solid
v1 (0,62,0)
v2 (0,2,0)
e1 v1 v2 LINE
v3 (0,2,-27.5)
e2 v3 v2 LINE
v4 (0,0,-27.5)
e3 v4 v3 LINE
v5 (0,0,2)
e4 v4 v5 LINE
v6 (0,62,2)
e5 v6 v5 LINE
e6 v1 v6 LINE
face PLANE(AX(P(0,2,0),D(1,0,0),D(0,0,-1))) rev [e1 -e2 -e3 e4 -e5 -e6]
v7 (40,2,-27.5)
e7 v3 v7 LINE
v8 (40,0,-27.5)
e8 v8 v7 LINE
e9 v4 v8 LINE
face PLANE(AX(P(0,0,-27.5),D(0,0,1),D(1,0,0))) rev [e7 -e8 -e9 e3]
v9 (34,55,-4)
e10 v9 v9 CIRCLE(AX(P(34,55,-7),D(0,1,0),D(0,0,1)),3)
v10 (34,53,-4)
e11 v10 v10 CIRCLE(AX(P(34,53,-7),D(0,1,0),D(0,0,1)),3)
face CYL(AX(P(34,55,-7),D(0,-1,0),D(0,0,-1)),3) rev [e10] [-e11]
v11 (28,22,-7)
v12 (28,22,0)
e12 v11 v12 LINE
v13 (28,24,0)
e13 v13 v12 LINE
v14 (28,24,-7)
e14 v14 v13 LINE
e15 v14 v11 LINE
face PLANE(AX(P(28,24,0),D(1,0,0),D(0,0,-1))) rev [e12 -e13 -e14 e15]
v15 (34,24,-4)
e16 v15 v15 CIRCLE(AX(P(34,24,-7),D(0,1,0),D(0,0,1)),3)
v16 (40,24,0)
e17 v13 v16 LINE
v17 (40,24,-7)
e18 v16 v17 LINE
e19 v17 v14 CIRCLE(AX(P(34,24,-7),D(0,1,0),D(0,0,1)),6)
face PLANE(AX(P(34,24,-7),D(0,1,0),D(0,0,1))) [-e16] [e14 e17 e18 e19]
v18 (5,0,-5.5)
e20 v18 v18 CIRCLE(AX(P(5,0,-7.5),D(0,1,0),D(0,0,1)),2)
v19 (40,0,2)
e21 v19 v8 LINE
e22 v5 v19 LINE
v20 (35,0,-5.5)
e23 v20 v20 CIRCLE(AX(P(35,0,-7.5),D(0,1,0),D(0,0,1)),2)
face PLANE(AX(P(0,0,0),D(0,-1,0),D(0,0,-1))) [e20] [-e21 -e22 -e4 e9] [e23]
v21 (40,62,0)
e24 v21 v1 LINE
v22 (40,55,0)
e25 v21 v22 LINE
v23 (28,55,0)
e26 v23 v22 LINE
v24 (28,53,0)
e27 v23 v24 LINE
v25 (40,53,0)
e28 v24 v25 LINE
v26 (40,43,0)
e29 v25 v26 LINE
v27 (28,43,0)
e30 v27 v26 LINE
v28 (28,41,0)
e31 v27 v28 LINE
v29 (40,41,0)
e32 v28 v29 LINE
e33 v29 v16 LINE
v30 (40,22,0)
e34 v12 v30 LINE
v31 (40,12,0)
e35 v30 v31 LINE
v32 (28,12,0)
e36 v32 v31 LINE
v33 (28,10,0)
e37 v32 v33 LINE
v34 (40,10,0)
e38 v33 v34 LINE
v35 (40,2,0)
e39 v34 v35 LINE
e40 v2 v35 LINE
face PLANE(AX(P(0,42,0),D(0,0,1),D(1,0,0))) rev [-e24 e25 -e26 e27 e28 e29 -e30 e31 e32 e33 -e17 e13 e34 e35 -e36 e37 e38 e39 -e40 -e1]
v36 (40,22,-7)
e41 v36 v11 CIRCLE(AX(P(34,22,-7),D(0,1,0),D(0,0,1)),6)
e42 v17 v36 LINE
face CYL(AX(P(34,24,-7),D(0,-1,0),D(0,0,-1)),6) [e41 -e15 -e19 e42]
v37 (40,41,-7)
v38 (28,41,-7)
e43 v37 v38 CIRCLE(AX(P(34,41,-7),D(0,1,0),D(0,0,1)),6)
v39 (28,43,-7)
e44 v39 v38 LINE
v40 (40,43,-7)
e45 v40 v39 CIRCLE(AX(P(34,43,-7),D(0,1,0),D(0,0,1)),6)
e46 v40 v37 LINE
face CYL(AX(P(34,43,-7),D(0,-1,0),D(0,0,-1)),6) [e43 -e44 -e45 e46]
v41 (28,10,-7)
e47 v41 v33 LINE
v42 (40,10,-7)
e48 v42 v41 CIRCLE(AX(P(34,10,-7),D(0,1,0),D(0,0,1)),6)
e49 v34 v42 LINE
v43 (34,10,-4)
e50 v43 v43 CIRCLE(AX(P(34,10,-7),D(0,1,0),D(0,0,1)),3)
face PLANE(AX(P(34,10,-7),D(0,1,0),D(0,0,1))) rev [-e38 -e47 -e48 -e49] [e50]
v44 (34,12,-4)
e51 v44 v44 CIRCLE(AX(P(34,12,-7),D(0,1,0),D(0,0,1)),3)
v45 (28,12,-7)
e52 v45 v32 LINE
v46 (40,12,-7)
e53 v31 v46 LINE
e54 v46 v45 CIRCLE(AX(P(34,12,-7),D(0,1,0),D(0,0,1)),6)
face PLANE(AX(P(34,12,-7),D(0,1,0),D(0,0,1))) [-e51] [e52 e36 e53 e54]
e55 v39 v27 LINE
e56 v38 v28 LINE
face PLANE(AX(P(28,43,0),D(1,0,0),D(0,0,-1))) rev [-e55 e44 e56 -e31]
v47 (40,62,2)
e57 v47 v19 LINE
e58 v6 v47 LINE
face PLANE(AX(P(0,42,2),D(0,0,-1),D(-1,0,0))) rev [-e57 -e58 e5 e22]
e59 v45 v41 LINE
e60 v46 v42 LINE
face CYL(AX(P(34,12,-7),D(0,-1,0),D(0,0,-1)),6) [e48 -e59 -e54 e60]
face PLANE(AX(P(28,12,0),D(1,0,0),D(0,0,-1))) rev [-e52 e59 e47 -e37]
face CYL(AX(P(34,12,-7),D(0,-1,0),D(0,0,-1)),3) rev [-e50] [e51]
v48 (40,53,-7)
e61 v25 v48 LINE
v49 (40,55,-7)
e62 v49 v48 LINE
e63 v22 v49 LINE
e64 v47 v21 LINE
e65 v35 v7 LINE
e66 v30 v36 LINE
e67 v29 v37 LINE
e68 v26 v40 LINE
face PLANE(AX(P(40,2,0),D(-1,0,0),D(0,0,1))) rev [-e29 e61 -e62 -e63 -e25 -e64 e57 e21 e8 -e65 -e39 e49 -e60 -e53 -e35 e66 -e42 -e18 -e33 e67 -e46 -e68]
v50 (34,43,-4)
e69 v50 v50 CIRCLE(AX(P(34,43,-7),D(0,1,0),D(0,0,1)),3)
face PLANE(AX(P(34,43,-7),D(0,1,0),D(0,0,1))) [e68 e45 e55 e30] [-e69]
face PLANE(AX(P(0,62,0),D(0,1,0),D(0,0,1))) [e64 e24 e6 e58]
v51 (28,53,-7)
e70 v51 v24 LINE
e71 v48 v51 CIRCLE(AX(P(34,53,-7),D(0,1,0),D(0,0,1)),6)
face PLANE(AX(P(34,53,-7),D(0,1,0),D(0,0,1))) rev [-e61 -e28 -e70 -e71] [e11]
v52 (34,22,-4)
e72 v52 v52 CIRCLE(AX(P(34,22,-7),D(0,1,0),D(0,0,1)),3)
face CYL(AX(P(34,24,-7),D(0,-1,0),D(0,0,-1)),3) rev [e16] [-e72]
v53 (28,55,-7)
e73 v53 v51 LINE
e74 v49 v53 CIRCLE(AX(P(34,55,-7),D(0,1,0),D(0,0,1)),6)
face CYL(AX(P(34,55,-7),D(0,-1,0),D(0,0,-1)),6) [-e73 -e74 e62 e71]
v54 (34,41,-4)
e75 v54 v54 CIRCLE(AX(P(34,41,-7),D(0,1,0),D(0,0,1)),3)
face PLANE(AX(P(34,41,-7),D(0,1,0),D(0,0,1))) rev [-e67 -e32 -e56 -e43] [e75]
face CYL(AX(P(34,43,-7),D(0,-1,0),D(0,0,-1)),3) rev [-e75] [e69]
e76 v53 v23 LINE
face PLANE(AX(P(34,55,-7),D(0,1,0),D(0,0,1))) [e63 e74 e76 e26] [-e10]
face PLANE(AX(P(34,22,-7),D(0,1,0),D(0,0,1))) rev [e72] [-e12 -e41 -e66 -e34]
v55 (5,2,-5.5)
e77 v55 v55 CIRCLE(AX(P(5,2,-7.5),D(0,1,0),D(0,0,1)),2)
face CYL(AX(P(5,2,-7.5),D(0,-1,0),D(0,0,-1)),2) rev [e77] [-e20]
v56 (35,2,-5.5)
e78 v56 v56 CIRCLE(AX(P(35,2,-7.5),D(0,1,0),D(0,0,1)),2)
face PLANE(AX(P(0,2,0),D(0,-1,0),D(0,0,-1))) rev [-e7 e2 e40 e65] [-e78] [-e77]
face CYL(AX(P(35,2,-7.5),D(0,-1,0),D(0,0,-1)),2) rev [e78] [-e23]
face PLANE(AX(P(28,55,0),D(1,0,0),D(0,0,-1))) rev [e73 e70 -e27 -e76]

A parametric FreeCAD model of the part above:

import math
import FreeCAD as App
import Part
import Sketcher

V = App.Vector
Q = App.Units.Quantity


def add_polygon(sketch, points):
    """Adds a closed chain of lines whose ends are joined by coincident constraints."""
    first, n = sketch.GeometryCount, len(points)
    for a, b in zip(points, points[1:] + points[:1]):
        sketch.addGeometry(Part.LineSegment(App.Vector(*a, 0), App.Vector(*b, 0)), False)
    for i in range(n):
        sketch.addConstraint(Sketcher.Constraint("Coincident", first + i, 2, first + (i + 1) % n, 1))

doc = App.newDocument("Part")
body = doc.addObject("PartDesign::Body", "Body")

# Sketch on XZ plane
sketch1 = body.newObject("Sketcher::SketchObject", "Sketch")
sketch1.AttachmentSupport = (doc.getObject("XZ_Plane"), [""])
sketch1.MapMode = "FlatFace"
add_polygon(sketch1, [(0, -55), (0, 0), (40, 0), (40, -55)])  # lines 0-3
sketch1.addGeometry(Part.Circle(V(5, -7.5, 0), V(0, 0, 1), 2), False)  # 4
sketch1.addGeometry(Part.Circle(V(35, -7.5, 0), V(0, 0, 1), 2), False)  # 5
sketch1.addGeometry(Part.Circle(V(5, -47.5, 0), V(0, 0, 1), 2), False)  # 6
sketch1.addGeometry(Part.Circle(V(35, -47.5, 0), V(0, 0, 1), 2), False)  # 7
sketch1.addConstraint([
    Sketcher.Constraint("Vertical", 0),
    Sketcher.Constraint("Horizontal", 1),
    Sketcher.Constraint("Vertical", 2),
    Sketcher.Constraint("Horizontal", 3),
    Sketcher.Constraint("Coincident", 0, 2, -1, 1),
    Sketcher.Constraint("Equal", 4, 5),
    Sketcher.Constraint("Equal", 5, 6),
    Sketcher.Constraint("Equal", 6, 7),
    Sketcher.Constraint("Horizontal", 4, 3, 5, 3),
    Sketcher.Constraint("Horizontal", 6, 3, 7, 3),
    Sketcher.Constraint("Vertical", 4, 3, 6, 3),
    Sketcher.Constraint("Vertical", 5, 3, 7, 3),
    Sketcher.Constraint("Diameter", 4, Q("4 mm")),
    Sketcher.Constraint("DistanceX", 1, 1, 1, 2, Q("40 mm")),
    Sketcher.Constraint("DistanceY", 0, 1, 0, 2, Q("55 mm")),
    Sketcher.Constraint("DistanceX", -1, 1, 4, 3, Q("5 mm")),
    Sketcher.Constraint("DistanceX", -1, 1, 5, 3, Q("35 mm")),
    Sketcher.Constraint("DistanceY", 6, 3, 4, 3, Q("40 mm")),
    Sketcher.Constraint("DistanceY", 4, 3, -1, 1, Q("7.5 mm")),
])
pad1 = body.newObject("PartDesign::Pad", "Pad")
pad1.Profile = sketch1
pad1.Length = 2
pad1.Reversed = True

# Sketch on XZ plane
sketch2 = body.newObject("Sketcher::SketchObject", "Sketch001")
sketch2.AttachmentSupport = (doc.getObject("XZ_Plane"), [""])
sketch2.MapMode = "FlatFace"
add_polygon(sketch2, [(0, 0), (0, 2), (40, 2), (40, 0)])  # lines 0-3
sketch2.addConstraint([
    Sketcher.Constraint("Vertical", 0),
    Sketcher.Constraint("Horizontal", 1),
    Sketcher.Constraint("Vertical", 2),
    Sketcher.Constraint("Horizontal", 3),
    Sketcher.Constraint("Coincident", 3, 2, -1, 1),
    Sketcher.Constraint("DistanceX", 1, 1, 1, 2, Q("40 mm")),
    Sketcher.Constraint("DistanceY", 0, 1, 0, 2, Q("2 mm")),
])
pad2 = body.newObject("PartDesign::Pad", "Pad001")
pad2.Profile = sketch2
pad2.Length = 42
pad2.Reversed = True

# Sketch on XZ plane
sketch3 = body.newObject("Sketcher::SketchObject", "Sketch002")
sketch3.AttachmentSupport = (doc.getObject("XZ_Plane"), [""])
sketch3.MapMode = "FlatFace"
sketch3.AttachmentOffset = App.Placement(V(0, 0, -22), App.Rotation())
sketch3.addGeometry([
    Part.LineSegment(V(40, 0, 0), V(40, -7, 0)),  # 0
    Part.ArcOfCircle(Part.Circle(V(34, -7, 0), V(0, 0, 1), 6), math.radians(180), math.radians(360)),  # 1
    Part.LineSegment(V(28, -7, 0), V(28, 0, 0)),  # 2
    Part.LineSegment(V(28, 0, 0), V(40, 0, 0)),  # 3
    Part.Circle(V(34, -7, 0), V(0, 0, 1), 3),  # 4
], False)
sketch3.addConstraint([
    Sketcher.Constraint("Tangent", 0, 2, 1, 2),
    Sketcher.Constraint("Tangent", 1, 1, 2, 1),
    Sketcher.Constraint("Coincident", 2, 2, 3, 1),
    Sketcher.Constraint("Coincident", 3, 2, 0, 1),
    Sketcher.Constraint("Vertical", 0),
    Sketcher.Constraint("Vertical", 2),
    Sketcher.Constraint("Horizontal", 3),
    Sketcher.Constraint("Coincident", 4, 3, 1, 3),
    Sketcher.Constraint("PointOnObject", 2, 2, -1),
    Sketcher.Constraint("Diameter", 4, Q("6 mm")),
    Sketcher.Constraint("Radius", 1, Q("6 mm")),
    Sketcher.Constraint("DistanceY", 0, 2, 0, 1, Q("7 mm")),
    Sketcher.Constraint("DistanceX", -1, 1, 1, 3, Q("34 mm")),
])
pad3 = body.newObject("PartDesign::Pad", "Pad002")
pad3.Profile = sketch3
pad3.Length = 2
pad3.Reversed = True
doc.recompute()

linearpattern = body.newObject("PartDesign::LinearPattern", "LinearPattern")
linearpattern.Originals = [pad3]
linearpattern.Direction = (doc.getObject("Y_Axis"), [""])
linearpattern.Mode = "offset"
linearpattern.Offset = 12
linearpattern.Occurrences = 2
linearpattern.Reversed = True
body.Tip = linearpattern

# Sketch on XZ plane
sketch4 = body.newObject("Sketcher::SketchObject", "Sketch003")
sketch4.AttachmentSupport = (doc.getObject("XZ_Plane"), [""])
sketch4.MapMode = "FlatFace"
sketch4.AttachmentOffset = App.Placement(V(0, 0, -2), App.Rotation())
add_polygon(sketch4, [(0, -55), (0, -28), (40, -28), (40, -55)])  # lines 0-3
sketch4.addConstraint([
    Sketcher.Constraint("Vertical", 0),
    Sketcher.Constraint("Horizontal", 1),
    Sketcher.Constraint("Vertical", 2),
    Sketcher.Constraint("Horizontal", 3),
    Sketcher.Constraint("PointOnObject", 0, 2, -2),
    Sketcher.Constraint("DistanceX", 1, 1, 1, 2, Q("40 mm")),
    Sketcher.Constraint("DistanceY", 0, 1, 0, 2, Q("27.5 mm")),
    Sketcher.Constraint("DistanceY", 2, 2, -1, 1, Q("55 mm")),
])
pocket1 = body.newObject("PartDesign::Pocket", "Pocket")
pocket1.Profile = sketch4
pocket1.Type = "ThroughAll"
pocket1.Reversed = True

# Sketch on XZ plane
sketch5 = body.newObject("Sketcher::SketchObject", "Sketch004")
sketch5.AttachmentSupport = (doc.getObject("XZ_Plane"), [""])
sketch5.MapMode = "FlatFace"
sketch5.AttachmentOffset = App.Placement(V(0, 0, -42), App.Rotation())
add_polygon(sketch5, [(0, 0), (0, 2), (40, 2), (40, 0)])  # lines 0-3
sketch5.addConstraint([
    Sketcher.Constraint("Vertical", 0),
    Sketcher.Constraint("Horizontal", 1),
    Sketcher.Constraint("Vertical", 2),
    Sketcher.Constraint("Horizontal", 3),
    Sketcher.Constraint("Coincident", 3, 2, -1, 1),
    Sketcher.Constraint("DistanceX", 1, 1, 1, 2, Q("40 mm")),
    Sketcher.Constraint("DistanceY", 0, 1, 0, 2, Q("2 mm")),
])
pad4 = body.newObject("PartDesign::Pad", "Pad003")
pad4.Profile = sketch5
pad4.Length = 20
pad4.Reversed = True

# Sketch on XZ plane
sketch6 = body.newObject("Sketcher::SketchObject", "Sketch005")
sketch6.AttachmentSupport = (doc.getObject("XZ_Plane"), [""])
sketch6.MapMode = "FlatFace"
sketch6.AttachmentOffset = App.Placement(V(0, 0, -41), App.Rotation())
sketch6.addGeometry([
    Part.LineSegment(V(40, 0, 0), V(40, -7, 0)),  # 0
    Part.ArcOfCircle(Part.Circle(V(34, -7, 0), V(0, 0, 1), 6), math.radians(180), math.radians(360)),  # 1
    Part.LineSegment(V(28, -7, 0), V(28, 0, 0)),  # 2
    Part.LineSegment(V(28, 0, 0), V(40, 0, 0)),  # 3
    Part.Circle(V(34, -7, 0), V(0, 0, 1), 3),  # 4
], False)
sketch6.addConstraint([
    Sketcher.Constraint("Tangent", 0, 2, 1, 2),
    Sketcher.Constraint("Tangent", 1, 1, 2, 1),
    Sketcher.Constraint("Coincident", 2, 2, 3, 1),
    Sketcher.Constraint("Coincident", 3, 2, 0, 1),
    Sketcher.Constraint("Vertical", 0),
    Sketcher.Constraint("Vertical", 2),
    Sketcher.Constraint("Horizontal", 3),
    Sketcher.Constraint("Coincident", 4, 3, 1, 3),
    Sketcher.Constraint("PointOnObject", 2, 2, -1),
    Sketcher.Constraint("Diameter", 4, Q("6 mm")),
    Sketcher.Constraint("Radius", 1, Q("6 mm")),
    Sketcher.Constraint("DistanceY", 0, 2, 0, 1, Q("7 mm")),
    Sketcher.Constraint("DistanceX", -1, 1, 1, 3, Q("34 mm")),
])
pad5 = body.newObject("PartDesign::Pad", "Pad004")
pad5.Profile = sketch6
pad5.Length = 2
pad5.Reversed = True

# Sketch on XZ plane
sketch7 = body.newObject("Sketcher::SketchObject", "Sketch006")
sketch7.AttachmentSupport = (doc.getObject("XZ_Plane"), [""])
sketch7.MapMode = "FlatFace"
sketch7.AttachmentOffset = App.Placement(V(0, 0, -53), App.Rotation())
sketch7.addGeometry([
    Part.LineSegment(V(40, 0, 0), V(40, -7, 0)),  # 0
    Part.ArcOfCircle(Part.Circle(V(34, -7, 0), V(0, 0, 1), 6), math.radians(180), math.radians(360)),  # 1
    Part.LineSegment(V(28, -7, 0), V(28, 0, 0)),  # 2
    Part.LineSegment(V(28, 0, 0), V(40, 0, 0)),  # 3
    Part.Circle(V(34, -7, 0), V(0, 0, 1), 3),  # 4
], False)
sketch7.addConstraint([
    Sketcher.Constraint("Tangent", 0, 2, 1, 2),
    Sketcher.Constraint("Tangent", 1, 1, 2, 1),
    Sketcher.Constraint("Coincident", 2, 2, 3, 1),
    Sketcher.Constraint("Coincident", 3, 2, 0, 1),
    Sketcher.Constraint("Vertical", 0),
    Sketcher.Constraint("Vertical", 2),
    Sketcher.Constraint("Horizontal", 3),
    Sketcher.Constraint("Coincident", 4, 3, 1, 3),
    Sketcher.Constraint("PointOnObject", 2, 2, -1),
    Sketcher.Constraint("Diameter", 4, Q("6 mm")),
    Sketcher.Constraint("Radius", 1, Q("6 mm")),
    Sketcher.Constraint("DistanceY", 0, 2, 0, 1, Q("7 mm")),
    Sketcher.Constraint("DistanceX", -1, 1, 1, 3, Q("34 mm")),
])
pad6 = body.newObject("PartDesign::Pad", "Pad005")
pad6.Profile = sketch7
pad6.Length = 2
pad6.Reversed = True

doc.recompute()
